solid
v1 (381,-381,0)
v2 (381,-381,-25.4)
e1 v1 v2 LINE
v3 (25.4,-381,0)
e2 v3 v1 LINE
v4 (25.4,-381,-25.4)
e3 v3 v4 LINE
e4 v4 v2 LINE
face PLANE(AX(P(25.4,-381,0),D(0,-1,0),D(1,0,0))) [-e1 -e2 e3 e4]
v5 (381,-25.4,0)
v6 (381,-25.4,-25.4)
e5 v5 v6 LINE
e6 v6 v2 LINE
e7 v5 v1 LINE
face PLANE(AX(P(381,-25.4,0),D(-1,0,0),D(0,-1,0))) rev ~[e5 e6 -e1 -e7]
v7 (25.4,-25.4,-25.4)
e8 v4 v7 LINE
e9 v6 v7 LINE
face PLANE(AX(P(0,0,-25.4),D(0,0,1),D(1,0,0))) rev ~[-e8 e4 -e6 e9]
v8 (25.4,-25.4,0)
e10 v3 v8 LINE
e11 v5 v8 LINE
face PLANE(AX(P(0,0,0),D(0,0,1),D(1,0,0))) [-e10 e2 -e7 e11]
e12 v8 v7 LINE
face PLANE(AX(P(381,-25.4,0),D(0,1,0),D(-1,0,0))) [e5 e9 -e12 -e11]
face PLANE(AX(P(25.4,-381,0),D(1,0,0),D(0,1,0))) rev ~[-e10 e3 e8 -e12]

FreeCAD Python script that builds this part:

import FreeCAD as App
import Part
import Sketcher

V = App.Vector
Q = App.Units.Quantity


def add_polygon(sketch, points):
    """Adds a closed chain of lines whose ends are joined by coincident constraints."""
    first, n = sketch.GeometryCount, len(points)
    for a, b in zip(points, points[1:] + points[:1]):
        sketch.addGeometry(Part.LineSegment(App.Vector(*a, 0), App.Vector(*b, 0)), False)
    for i in range(n):
        sketch.addConstraint(Sketcher.Constraint("Coincident", first + i, 2, first + (i + 1) % n, 1))

doc = App.newDocument("Part")
body = doc.addObject("PartDesign::Body", "Body")

sketch1 = body.newObject("Sketcher::SketchObject", "Sketch")
sketch1.AttachmentSupport = (doc.getObject("XY_Plane"), [""])
sketch1.MapMode = "FlatFace"
add_polygon(sketch1, [(381, -25), (25, -25), (25, -381), (381, -381)])
sketch1.addConstraint([
    Sketcher.Constraint("Horizontal", 0),
    Sketcher.Constraint("Vertical", 1),
    Sketcher.Constraint("Horizontal", 2),
    Sketcher.Constraint("Vertical", 3),
    Sketcher.Constraint("Equal", 2, 1),
    Sketcher.Constraint("DistanceX", -1, 1, 0, 2, Q("1 in")),
    Sketcher.Constraint("DistanceY", 0, 2, -1, 1, Q("1 in")),
    Sketcher.Constraint("DistanceY", 1, 2, -1, 1, Q("15 in")),
])
pad1 = body.newObject("PartDesign::Pad", "Pad")
pad1.Profile = sketch1
pad1.Length = Q("1 in")
pad1.Reversed = True

doc.recompute()
